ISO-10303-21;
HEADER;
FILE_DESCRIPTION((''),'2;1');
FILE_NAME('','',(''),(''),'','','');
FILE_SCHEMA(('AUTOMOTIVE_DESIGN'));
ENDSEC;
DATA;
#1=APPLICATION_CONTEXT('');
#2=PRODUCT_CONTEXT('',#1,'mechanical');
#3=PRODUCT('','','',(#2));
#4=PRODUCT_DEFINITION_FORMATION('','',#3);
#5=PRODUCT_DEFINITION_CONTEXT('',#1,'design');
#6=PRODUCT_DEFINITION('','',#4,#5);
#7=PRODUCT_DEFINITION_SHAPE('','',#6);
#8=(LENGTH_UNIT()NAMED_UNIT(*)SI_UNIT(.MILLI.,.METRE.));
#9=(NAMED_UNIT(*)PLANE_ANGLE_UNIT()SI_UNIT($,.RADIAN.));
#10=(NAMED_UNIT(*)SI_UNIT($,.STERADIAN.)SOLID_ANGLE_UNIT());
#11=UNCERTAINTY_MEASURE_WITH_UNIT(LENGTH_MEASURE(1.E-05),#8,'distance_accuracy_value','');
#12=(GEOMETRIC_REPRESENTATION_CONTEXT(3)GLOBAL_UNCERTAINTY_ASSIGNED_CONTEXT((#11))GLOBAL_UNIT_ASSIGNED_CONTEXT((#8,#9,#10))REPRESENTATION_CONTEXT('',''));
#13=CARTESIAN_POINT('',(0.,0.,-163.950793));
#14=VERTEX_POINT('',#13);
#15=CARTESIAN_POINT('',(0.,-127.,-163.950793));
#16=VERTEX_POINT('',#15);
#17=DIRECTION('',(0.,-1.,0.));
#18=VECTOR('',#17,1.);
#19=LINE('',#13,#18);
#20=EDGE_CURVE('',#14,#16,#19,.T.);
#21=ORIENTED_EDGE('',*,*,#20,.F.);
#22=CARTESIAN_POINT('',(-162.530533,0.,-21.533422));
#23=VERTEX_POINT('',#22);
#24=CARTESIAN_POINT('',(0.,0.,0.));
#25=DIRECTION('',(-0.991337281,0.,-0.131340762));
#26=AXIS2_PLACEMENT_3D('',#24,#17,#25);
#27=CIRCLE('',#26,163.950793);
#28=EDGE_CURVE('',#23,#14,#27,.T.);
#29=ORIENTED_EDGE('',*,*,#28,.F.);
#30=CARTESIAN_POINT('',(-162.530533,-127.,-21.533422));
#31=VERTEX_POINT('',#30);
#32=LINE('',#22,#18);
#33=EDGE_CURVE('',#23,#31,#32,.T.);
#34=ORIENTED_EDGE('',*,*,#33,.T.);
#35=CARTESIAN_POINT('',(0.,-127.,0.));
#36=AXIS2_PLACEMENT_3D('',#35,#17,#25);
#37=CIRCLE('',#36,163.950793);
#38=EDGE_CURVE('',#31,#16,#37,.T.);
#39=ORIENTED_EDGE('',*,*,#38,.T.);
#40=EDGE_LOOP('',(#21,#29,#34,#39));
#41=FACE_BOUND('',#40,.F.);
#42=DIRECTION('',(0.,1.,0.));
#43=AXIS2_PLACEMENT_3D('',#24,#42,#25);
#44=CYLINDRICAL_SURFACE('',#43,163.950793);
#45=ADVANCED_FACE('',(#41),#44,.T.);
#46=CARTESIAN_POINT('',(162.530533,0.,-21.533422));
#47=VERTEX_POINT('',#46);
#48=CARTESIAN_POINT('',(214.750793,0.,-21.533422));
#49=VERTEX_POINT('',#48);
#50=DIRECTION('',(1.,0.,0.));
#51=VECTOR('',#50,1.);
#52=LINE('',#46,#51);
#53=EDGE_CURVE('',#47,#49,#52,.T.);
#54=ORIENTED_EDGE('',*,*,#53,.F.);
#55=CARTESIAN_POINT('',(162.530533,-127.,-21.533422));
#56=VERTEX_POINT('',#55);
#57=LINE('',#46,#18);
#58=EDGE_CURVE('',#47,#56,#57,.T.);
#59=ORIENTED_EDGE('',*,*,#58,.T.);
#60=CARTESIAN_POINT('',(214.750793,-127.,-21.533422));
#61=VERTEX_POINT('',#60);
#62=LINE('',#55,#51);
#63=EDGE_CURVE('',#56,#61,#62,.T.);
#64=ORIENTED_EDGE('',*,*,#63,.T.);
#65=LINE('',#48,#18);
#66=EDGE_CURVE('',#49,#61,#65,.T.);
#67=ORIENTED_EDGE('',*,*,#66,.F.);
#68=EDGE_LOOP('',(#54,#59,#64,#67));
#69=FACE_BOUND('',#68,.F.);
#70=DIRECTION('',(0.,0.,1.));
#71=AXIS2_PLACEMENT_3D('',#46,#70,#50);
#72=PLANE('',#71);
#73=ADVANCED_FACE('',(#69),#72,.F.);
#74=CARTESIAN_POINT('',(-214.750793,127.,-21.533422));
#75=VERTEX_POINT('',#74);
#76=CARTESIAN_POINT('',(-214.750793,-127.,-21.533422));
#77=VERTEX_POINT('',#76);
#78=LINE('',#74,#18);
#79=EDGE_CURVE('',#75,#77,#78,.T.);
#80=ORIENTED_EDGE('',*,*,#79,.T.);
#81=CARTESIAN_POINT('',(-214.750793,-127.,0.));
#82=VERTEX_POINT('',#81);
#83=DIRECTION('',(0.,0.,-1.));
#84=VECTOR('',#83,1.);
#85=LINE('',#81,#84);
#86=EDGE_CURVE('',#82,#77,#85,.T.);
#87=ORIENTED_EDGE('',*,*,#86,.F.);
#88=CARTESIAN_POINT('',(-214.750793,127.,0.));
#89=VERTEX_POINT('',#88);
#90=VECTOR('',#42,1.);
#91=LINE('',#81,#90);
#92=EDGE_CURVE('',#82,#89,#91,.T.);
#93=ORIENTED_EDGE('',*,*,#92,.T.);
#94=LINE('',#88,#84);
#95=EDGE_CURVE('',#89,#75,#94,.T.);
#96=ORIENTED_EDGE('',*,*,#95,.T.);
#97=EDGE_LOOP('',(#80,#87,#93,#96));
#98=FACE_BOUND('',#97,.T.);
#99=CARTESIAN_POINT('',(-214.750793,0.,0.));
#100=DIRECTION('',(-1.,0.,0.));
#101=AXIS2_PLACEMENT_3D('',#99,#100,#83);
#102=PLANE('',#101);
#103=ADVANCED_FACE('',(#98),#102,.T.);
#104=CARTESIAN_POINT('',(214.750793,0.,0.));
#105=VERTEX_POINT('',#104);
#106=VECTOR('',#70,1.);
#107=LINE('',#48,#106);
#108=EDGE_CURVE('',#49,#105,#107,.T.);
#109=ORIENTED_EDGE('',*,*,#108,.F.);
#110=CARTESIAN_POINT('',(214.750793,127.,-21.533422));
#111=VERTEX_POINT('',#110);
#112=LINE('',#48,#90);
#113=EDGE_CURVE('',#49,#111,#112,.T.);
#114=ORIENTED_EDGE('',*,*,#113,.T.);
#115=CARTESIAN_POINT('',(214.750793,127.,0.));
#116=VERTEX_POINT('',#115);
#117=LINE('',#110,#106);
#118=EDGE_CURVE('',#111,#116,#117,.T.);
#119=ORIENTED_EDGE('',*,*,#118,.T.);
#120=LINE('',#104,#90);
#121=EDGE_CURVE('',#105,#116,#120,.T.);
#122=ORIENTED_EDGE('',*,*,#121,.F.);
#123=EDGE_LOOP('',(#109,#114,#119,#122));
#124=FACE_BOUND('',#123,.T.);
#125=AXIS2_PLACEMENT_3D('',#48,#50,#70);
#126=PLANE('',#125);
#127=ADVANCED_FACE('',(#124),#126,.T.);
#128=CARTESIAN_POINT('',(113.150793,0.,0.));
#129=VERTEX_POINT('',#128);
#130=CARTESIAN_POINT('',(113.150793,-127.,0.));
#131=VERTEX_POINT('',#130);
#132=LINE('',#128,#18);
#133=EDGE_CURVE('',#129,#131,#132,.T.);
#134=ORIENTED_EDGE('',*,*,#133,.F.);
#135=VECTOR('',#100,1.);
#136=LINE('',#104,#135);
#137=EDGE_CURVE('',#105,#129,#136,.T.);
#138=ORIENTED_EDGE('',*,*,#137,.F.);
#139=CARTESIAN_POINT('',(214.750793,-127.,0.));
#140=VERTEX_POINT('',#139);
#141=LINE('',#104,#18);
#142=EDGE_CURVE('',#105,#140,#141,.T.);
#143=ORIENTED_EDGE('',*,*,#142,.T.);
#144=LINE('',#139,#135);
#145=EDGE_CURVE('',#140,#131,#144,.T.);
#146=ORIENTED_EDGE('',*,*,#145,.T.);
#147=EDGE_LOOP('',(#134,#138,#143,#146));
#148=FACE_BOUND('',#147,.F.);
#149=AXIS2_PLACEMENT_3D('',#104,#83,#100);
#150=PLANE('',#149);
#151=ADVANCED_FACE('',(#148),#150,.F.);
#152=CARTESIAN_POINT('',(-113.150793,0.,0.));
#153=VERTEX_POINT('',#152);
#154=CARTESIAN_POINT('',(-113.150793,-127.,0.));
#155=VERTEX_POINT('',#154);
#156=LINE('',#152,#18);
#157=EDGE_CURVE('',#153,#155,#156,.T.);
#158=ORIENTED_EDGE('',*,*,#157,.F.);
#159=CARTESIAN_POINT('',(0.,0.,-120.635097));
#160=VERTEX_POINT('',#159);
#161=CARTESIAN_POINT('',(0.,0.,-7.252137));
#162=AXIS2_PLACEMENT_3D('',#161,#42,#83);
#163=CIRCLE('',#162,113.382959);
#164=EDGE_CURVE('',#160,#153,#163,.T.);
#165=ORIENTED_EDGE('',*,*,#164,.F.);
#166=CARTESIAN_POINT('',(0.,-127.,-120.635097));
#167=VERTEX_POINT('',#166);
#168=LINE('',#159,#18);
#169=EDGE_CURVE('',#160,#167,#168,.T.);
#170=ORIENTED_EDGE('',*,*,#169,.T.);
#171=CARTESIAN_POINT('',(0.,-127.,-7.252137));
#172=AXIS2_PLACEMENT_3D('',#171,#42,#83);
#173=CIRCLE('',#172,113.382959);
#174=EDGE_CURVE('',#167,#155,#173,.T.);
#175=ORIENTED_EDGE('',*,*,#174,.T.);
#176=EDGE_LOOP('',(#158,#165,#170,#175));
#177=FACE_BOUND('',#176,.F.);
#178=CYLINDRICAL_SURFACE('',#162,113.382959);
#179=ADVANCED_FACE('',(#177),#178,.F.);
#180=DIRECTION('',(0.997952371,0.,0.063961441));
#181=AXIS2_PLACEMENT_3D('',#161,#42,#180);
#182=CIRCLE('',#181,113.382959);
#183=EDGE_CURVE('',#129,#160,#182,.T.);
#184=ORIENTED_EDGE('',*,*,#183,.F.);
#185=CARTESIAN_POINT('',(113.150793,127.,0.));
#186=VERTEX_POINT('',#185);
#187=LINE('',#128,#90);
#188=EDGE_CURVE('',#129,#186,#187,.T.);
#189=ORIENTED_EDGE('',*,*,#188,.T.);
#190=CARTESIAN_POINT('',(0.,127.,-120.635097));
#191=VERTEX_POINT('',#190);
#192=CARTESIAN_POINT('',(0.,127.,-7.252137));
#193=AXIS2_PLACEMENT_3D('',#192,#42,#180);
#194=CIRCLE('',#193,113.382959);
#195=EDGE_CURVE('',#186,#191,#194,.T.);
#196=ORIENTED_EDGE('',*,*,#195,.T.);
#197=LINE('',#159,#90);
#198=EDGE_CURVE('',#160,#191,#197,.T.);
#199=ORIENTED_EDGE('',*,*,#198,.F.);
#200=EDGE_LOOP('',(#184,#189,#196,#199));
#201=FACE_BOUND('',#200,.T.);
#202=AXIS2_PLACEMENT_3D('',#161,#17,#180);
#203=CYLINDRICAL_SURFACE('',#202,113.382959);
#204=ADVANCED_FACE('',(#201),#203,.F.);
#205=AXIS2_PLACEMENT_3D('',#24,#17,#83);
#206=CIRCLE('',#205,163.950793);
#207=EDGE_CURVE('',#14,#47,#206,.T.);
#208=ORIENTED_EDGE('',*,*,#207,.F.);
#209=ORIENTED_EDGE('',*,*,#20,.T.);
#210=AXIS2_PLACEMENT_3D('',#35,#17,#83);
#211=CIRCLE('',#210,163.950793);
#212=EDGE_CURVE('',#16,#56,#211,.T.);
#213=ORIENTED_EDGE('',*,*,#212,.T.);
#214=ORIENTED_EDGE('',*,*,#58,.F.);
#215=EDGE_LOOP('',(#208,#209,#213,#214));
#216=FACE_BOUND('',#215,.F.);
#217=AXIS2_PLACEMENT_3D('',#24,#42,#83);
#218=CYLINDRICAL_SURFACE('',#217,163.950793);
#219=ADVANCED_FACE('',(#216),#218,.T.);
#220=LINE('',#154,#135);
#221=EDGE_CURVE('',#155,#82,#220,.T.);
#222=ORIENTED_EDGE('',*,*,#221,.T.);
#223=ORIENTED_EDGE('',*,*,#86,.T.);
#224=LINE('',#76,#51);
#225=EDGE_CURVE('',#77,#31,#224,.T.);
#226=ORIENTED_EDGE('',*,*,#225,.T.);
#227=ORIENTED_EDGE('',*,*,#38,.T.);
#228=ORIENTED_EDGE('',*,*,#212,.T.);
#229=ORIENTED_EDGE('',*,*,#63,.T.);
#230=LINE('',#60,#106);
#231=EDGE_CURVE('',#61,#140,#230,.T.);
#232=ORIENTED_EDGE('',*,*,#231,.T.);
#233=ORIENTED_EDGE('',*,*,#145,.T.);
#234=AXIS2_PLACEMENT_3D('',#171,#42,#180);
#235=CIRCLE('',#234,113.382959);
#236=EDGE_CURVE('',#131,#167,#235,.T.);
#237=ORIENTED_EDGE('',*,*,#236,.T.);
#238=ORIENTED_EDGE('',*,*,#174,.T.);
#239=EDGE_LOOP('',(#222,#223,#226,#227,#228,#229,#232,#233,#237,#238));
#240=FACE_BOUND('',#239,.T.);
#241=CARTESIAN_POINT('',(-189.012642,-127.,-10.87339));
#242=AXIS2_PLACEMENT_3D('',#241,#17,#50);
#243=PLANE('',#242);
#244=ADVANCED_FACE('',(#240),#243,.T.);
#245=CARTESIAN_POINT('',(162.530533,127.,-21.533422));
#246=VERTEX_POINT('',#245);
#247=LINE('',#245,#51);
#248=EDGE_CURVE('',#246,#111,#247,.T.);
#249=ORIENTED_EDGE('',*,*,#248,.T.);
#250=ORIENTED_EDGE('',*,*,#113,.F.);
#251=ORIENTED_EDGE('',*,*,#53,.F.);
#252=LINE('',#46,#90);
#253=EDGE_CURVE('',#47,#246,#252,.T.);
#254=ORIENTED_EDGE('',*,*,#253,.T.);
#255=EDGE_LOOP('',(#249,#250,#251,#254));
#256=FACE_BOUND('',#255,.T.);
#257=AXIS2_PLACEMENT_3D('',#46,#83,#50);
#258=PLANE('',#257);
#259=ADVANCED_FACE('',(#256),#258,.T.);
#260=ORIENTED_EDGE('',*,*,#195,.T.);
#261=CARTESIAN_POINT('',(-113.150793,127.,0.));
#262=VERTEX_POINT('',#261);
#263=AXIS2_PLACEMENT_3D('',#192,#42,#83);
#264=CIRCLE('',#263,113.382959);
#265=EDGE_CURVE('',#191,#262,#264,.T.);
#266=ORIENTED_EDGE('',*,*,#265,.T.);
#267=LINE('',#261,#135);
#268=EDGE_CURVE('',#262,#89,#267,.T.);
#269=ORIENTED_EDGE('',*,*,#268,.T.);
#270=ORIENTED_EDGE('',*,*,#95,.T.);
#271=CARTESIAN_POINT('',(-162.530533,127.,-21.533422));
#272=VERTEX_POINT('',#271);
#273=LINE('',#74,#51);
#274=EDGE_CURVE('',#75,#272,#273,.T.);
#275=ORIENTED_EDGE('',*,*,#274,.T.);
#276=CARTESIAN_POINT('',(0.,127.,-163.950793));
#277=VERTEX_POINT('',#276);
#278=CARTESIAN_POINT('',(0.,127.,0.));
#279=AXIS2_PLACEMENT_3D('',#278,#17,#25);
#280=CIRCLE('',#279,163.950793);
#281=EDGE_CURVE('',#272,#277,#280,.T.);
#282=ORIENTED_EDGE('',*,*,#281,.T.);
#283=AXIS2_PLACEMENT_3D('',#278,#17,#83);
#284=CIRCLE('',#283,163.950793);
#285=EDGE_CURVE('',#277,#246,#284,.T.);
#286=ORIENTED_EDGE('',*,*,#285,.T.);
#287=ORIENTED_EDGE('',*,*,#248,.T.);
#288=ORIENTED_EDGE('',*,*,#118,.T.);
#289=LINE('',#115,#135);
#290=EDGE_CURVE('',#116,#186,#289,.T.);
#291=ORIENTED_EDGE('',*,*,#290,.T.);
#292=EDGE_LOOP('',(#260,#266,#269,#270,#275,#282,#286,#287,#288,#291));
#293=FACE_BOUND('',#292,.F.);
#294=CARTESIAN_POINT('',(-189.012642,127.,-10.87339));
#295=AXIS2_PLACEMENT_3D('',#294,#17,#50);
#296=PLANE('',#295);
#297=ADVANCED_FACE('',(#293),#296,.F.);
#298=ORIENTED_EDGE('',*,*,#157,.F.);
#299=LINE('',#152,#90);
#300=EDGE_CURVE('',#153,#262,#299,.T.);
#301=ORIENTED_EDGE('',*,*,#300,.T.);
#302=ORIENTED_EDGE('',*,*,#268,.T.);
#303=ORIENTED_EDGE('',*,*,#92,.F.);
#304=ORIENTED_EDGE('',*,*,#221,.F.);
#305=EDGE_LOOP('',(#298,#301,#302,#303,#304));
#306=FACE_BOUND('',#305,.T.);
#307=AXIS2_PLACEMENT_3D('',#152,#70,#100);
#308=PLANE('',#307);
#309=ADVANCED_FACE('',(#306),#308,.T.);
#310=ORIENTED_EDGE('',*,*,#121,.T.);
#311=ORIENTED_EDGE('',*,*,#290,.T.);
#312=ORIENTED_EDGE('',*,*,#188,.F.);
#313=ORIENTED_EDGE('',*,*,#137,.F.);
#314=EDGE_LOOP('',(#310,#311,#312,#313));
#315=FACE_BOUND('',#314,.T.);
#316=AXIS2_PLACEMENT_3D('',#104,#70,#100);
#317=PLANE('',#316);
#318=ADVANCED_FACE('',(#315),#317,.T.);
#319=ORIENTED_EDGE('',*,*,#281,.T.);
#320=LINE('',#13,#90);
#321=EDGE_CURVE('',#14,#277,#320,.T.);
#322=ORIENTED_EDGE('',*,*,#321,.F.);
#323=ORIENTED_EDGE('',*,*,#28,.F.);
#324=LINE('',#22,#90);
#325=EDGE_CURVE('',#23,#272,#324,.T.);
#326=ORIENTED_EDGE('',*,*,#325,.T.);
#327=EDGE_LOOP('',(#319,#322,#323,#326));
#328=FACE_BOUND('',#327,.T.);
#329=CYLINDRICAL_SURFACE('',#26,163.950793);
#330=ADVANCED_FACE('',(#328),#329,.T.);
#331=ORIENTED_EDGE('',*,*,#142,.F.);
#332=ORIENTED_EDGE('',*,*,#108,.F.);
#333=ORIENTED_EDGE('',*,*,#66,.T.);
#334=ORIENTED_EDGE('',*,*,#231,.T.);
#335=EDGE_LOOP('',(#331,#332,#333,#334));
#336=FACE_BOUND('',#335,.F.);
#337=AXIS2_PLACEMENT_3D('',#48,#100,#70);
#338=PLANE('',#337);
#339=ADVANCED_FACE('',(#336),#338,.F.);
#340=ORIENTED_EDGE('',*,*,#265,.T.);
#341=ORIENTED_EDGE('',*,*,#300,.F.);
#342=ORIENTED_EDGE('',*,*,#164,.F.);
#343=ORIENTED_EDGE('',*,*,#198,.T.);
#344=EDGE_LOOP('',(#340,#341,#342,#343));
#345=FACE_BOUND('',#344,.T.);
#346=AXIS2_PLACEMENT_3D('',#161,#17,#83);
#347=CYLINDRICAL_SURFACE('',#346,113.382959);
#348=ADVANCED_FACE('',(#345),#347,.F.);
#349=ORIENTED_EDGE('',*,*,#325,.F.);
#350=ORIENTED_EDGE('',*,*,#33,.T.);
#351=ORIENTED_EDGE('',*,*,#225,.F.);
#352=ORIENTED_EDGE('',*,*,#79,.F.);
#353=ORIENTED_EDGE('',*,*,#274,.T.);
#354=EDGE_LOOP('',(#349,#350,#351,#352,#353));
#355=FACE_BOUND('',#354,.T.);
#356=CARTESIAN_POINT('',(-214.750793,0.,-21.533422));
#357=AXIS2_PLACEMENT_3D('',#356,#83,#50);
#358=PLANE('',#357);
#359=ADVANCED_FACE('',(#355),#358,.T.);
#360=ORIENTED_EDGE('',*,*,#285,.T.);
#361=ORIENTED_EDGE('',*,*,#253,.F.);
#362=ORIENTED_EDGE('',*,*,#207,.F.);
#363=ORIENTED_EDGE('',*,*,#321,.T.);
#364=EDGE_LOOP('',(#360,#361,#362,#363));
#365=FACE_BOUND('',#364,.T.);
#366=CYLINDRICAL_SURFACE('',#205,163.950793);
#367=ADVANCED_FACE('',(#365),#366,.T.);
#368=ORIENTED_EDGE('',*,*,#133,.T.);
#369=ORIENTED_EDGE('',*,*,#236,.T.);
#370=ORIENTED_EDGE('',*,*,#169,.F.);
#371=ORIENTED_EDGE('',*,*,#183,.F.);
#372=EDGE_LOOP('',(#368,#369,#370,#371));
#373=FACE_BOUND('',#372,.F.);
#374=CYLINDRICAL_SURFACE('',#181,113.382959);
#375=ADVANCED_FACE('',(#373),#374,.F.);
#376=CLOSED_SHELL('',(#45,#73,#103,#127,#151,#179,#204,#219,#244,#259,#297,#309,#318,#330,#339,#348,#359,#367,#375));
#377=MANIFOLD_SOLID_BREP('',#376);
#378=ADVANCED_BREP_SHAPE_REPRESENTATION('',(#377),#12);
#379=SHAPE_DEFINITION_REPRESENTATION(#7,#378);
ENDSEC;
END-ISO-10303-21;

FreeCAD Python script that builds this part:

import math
import FreeCAD as App
import Part
import Sketcher
Q = App.Units.Quantity

doc = App.newDocument("Part")
params = doc.addObject("Spreadsheet::Sheet", "Params")
for row, (alias, value) in enumerate([
    ("sketch1_width", "4 in"),
    ("pad1_length", "10 in"),
], start=1):
    params.set(f"A{row}", alias)
    params.set(f"B{row}", "=" + value)
    params.setAlias(f"B{row}", alias)

body = doc.addObject("PartDesign::Body", "Body")

# Sketch on XZ plane
sketch1 = body.newObject("Sketcher::SketchObject", "Sketch")
sketch1.AttachmentSupport = (doc.getObject("XZ_Plane"), [""])
sketch1.MapMode = "FlatFace"
sketch1.addGeometry([
    Part.LineSegment(App.Vector(-215, 0, 0), App.Vector(-215, -22, 0)),  # 0
    Part.LineSegment(App.Vector(-215, -22, 0), App.Vector(-163, -22, 0)),  # 1
    Part.ArcOfCircle(Part.Circle(App.Vector(0, 0, 0), App.Vector(0, 0, 1), 164), math.radians(-172), math.radians(-90)),  # 2
    Part.ArcOfCircle(Part.Circle(App.Vector(0, 0, 0), App.Vector(0, 0, 1), 164), math.radians(-90), math.radians(-8)),  # 3
    Part.LineSegment(App.Vector(163, -22, 0), App.Vector(215, -22, 0)),  # 4
    Part.LineSegment(App.Vector(215, -22, 0), App.Vector(215, 0, 0)),  # 5
    Part.LineSegment(App.Vector(215, 0, 0), App.Vector(113, 0, 0)),  # 6
    Part.ArcOfCircle(Part.Circle(App.Vector(0, -7, 0), App.Vector(0, 0, 1), 113), math.radians(-90), math.radians(4)),  # 7
    Part.ArcOfCircle(Part.Circle(App.Vector(0, -7, 0), App.Vector(0, 0, 1), 113), math.radians(176), math.radians(270)),  # 8
    Part.LineSegment(App.Vector(-113, 0, 0), App.Vector(-215, 0, 0)),  # 9
], False)
sketch1.addConstraint([
    Sketcher.Constraint("Coincident", 0, 2, 1, 1),
    Sketcher.Constraint("Coincident", 1, 2, 2, 1),
    Sketcher.Constraint("Tangent", 2, 2, 3, 1),
    Sketcher.Constraint("Coincident", 3, 2, 4, 1),
    Sketcher.Constraint("Coincident", 4, 2, 5, 1),
    Sketcher.Constraint("Coincident", 5, 2, 6, 1),
    Sketcher.Constraint("Coincident", 6, 2, 7, 2),
    Sketcher.Constraint("Tangent", 7, 1, 8, 2),
    Sketcher.Constraint("Coincident", 8, 1, 9, 1),
    Sketcher.Constraint("Coincident", 9, 2, 0, 1),
    Sketcher.Constraint("Vertical", 0),
    Sketcher.Constraint("Horizontal", 1),
    Sketcher.Constraint("Horizontal", 4),
    Sketcher.Constraint("Vertical", 5),
    Sketcher.Constraint("Horizontal", 6),
    Sketcher.Constraint("Horizontal", 9),
    Sketcher.Constraint("Coincident", 2, 3, -1, 1),
    Sketcher.Constraint("Equal", 2, 3),
    Sketcher.Constraint("Equal", 7, 8),
    Sketcher.Constraint("Symmetric", 6, 2, 8, 1, -1, 1),
    Sketcher.Constraint("Symmetric", 0, 2, 4, 2, -2),
    Sketcher.Constraint("PointOnObject", 7, 3, -2),
    Sketcher.Constraint("PointOnObject", 2, 2, -2),
    Sketcher.Constraint("PointOnObject", 7, 1, -2),
    Sketcher.Constraint("DistanceX", 6, 2, 6, 1, Q("4 in")),
    Sketcher.Constraint("Radius", 7, Q("113.382959 mm")),
    Sketcher.Constraint("Radius", 2, Q("163.950793 mm")),
    Sketcher.Constraint("DistanceX", 1, 1, 1, 2, Q("52.22026 mm")),
    Sketcher.Constraint("DistanceY", 0, 2, 0, 1, Q("21.533422 mm")),
])
sketch1.setExpression("Constraints[24]", "Params.sketch1_width")
pad1 = body.newObject("PartDesign::Pad", "Pad")
pad1.Profile = sketch1
pad1.setExpression("Length", "Params.pad1_length")
pad1.Midplane = True

doc.recompute()
